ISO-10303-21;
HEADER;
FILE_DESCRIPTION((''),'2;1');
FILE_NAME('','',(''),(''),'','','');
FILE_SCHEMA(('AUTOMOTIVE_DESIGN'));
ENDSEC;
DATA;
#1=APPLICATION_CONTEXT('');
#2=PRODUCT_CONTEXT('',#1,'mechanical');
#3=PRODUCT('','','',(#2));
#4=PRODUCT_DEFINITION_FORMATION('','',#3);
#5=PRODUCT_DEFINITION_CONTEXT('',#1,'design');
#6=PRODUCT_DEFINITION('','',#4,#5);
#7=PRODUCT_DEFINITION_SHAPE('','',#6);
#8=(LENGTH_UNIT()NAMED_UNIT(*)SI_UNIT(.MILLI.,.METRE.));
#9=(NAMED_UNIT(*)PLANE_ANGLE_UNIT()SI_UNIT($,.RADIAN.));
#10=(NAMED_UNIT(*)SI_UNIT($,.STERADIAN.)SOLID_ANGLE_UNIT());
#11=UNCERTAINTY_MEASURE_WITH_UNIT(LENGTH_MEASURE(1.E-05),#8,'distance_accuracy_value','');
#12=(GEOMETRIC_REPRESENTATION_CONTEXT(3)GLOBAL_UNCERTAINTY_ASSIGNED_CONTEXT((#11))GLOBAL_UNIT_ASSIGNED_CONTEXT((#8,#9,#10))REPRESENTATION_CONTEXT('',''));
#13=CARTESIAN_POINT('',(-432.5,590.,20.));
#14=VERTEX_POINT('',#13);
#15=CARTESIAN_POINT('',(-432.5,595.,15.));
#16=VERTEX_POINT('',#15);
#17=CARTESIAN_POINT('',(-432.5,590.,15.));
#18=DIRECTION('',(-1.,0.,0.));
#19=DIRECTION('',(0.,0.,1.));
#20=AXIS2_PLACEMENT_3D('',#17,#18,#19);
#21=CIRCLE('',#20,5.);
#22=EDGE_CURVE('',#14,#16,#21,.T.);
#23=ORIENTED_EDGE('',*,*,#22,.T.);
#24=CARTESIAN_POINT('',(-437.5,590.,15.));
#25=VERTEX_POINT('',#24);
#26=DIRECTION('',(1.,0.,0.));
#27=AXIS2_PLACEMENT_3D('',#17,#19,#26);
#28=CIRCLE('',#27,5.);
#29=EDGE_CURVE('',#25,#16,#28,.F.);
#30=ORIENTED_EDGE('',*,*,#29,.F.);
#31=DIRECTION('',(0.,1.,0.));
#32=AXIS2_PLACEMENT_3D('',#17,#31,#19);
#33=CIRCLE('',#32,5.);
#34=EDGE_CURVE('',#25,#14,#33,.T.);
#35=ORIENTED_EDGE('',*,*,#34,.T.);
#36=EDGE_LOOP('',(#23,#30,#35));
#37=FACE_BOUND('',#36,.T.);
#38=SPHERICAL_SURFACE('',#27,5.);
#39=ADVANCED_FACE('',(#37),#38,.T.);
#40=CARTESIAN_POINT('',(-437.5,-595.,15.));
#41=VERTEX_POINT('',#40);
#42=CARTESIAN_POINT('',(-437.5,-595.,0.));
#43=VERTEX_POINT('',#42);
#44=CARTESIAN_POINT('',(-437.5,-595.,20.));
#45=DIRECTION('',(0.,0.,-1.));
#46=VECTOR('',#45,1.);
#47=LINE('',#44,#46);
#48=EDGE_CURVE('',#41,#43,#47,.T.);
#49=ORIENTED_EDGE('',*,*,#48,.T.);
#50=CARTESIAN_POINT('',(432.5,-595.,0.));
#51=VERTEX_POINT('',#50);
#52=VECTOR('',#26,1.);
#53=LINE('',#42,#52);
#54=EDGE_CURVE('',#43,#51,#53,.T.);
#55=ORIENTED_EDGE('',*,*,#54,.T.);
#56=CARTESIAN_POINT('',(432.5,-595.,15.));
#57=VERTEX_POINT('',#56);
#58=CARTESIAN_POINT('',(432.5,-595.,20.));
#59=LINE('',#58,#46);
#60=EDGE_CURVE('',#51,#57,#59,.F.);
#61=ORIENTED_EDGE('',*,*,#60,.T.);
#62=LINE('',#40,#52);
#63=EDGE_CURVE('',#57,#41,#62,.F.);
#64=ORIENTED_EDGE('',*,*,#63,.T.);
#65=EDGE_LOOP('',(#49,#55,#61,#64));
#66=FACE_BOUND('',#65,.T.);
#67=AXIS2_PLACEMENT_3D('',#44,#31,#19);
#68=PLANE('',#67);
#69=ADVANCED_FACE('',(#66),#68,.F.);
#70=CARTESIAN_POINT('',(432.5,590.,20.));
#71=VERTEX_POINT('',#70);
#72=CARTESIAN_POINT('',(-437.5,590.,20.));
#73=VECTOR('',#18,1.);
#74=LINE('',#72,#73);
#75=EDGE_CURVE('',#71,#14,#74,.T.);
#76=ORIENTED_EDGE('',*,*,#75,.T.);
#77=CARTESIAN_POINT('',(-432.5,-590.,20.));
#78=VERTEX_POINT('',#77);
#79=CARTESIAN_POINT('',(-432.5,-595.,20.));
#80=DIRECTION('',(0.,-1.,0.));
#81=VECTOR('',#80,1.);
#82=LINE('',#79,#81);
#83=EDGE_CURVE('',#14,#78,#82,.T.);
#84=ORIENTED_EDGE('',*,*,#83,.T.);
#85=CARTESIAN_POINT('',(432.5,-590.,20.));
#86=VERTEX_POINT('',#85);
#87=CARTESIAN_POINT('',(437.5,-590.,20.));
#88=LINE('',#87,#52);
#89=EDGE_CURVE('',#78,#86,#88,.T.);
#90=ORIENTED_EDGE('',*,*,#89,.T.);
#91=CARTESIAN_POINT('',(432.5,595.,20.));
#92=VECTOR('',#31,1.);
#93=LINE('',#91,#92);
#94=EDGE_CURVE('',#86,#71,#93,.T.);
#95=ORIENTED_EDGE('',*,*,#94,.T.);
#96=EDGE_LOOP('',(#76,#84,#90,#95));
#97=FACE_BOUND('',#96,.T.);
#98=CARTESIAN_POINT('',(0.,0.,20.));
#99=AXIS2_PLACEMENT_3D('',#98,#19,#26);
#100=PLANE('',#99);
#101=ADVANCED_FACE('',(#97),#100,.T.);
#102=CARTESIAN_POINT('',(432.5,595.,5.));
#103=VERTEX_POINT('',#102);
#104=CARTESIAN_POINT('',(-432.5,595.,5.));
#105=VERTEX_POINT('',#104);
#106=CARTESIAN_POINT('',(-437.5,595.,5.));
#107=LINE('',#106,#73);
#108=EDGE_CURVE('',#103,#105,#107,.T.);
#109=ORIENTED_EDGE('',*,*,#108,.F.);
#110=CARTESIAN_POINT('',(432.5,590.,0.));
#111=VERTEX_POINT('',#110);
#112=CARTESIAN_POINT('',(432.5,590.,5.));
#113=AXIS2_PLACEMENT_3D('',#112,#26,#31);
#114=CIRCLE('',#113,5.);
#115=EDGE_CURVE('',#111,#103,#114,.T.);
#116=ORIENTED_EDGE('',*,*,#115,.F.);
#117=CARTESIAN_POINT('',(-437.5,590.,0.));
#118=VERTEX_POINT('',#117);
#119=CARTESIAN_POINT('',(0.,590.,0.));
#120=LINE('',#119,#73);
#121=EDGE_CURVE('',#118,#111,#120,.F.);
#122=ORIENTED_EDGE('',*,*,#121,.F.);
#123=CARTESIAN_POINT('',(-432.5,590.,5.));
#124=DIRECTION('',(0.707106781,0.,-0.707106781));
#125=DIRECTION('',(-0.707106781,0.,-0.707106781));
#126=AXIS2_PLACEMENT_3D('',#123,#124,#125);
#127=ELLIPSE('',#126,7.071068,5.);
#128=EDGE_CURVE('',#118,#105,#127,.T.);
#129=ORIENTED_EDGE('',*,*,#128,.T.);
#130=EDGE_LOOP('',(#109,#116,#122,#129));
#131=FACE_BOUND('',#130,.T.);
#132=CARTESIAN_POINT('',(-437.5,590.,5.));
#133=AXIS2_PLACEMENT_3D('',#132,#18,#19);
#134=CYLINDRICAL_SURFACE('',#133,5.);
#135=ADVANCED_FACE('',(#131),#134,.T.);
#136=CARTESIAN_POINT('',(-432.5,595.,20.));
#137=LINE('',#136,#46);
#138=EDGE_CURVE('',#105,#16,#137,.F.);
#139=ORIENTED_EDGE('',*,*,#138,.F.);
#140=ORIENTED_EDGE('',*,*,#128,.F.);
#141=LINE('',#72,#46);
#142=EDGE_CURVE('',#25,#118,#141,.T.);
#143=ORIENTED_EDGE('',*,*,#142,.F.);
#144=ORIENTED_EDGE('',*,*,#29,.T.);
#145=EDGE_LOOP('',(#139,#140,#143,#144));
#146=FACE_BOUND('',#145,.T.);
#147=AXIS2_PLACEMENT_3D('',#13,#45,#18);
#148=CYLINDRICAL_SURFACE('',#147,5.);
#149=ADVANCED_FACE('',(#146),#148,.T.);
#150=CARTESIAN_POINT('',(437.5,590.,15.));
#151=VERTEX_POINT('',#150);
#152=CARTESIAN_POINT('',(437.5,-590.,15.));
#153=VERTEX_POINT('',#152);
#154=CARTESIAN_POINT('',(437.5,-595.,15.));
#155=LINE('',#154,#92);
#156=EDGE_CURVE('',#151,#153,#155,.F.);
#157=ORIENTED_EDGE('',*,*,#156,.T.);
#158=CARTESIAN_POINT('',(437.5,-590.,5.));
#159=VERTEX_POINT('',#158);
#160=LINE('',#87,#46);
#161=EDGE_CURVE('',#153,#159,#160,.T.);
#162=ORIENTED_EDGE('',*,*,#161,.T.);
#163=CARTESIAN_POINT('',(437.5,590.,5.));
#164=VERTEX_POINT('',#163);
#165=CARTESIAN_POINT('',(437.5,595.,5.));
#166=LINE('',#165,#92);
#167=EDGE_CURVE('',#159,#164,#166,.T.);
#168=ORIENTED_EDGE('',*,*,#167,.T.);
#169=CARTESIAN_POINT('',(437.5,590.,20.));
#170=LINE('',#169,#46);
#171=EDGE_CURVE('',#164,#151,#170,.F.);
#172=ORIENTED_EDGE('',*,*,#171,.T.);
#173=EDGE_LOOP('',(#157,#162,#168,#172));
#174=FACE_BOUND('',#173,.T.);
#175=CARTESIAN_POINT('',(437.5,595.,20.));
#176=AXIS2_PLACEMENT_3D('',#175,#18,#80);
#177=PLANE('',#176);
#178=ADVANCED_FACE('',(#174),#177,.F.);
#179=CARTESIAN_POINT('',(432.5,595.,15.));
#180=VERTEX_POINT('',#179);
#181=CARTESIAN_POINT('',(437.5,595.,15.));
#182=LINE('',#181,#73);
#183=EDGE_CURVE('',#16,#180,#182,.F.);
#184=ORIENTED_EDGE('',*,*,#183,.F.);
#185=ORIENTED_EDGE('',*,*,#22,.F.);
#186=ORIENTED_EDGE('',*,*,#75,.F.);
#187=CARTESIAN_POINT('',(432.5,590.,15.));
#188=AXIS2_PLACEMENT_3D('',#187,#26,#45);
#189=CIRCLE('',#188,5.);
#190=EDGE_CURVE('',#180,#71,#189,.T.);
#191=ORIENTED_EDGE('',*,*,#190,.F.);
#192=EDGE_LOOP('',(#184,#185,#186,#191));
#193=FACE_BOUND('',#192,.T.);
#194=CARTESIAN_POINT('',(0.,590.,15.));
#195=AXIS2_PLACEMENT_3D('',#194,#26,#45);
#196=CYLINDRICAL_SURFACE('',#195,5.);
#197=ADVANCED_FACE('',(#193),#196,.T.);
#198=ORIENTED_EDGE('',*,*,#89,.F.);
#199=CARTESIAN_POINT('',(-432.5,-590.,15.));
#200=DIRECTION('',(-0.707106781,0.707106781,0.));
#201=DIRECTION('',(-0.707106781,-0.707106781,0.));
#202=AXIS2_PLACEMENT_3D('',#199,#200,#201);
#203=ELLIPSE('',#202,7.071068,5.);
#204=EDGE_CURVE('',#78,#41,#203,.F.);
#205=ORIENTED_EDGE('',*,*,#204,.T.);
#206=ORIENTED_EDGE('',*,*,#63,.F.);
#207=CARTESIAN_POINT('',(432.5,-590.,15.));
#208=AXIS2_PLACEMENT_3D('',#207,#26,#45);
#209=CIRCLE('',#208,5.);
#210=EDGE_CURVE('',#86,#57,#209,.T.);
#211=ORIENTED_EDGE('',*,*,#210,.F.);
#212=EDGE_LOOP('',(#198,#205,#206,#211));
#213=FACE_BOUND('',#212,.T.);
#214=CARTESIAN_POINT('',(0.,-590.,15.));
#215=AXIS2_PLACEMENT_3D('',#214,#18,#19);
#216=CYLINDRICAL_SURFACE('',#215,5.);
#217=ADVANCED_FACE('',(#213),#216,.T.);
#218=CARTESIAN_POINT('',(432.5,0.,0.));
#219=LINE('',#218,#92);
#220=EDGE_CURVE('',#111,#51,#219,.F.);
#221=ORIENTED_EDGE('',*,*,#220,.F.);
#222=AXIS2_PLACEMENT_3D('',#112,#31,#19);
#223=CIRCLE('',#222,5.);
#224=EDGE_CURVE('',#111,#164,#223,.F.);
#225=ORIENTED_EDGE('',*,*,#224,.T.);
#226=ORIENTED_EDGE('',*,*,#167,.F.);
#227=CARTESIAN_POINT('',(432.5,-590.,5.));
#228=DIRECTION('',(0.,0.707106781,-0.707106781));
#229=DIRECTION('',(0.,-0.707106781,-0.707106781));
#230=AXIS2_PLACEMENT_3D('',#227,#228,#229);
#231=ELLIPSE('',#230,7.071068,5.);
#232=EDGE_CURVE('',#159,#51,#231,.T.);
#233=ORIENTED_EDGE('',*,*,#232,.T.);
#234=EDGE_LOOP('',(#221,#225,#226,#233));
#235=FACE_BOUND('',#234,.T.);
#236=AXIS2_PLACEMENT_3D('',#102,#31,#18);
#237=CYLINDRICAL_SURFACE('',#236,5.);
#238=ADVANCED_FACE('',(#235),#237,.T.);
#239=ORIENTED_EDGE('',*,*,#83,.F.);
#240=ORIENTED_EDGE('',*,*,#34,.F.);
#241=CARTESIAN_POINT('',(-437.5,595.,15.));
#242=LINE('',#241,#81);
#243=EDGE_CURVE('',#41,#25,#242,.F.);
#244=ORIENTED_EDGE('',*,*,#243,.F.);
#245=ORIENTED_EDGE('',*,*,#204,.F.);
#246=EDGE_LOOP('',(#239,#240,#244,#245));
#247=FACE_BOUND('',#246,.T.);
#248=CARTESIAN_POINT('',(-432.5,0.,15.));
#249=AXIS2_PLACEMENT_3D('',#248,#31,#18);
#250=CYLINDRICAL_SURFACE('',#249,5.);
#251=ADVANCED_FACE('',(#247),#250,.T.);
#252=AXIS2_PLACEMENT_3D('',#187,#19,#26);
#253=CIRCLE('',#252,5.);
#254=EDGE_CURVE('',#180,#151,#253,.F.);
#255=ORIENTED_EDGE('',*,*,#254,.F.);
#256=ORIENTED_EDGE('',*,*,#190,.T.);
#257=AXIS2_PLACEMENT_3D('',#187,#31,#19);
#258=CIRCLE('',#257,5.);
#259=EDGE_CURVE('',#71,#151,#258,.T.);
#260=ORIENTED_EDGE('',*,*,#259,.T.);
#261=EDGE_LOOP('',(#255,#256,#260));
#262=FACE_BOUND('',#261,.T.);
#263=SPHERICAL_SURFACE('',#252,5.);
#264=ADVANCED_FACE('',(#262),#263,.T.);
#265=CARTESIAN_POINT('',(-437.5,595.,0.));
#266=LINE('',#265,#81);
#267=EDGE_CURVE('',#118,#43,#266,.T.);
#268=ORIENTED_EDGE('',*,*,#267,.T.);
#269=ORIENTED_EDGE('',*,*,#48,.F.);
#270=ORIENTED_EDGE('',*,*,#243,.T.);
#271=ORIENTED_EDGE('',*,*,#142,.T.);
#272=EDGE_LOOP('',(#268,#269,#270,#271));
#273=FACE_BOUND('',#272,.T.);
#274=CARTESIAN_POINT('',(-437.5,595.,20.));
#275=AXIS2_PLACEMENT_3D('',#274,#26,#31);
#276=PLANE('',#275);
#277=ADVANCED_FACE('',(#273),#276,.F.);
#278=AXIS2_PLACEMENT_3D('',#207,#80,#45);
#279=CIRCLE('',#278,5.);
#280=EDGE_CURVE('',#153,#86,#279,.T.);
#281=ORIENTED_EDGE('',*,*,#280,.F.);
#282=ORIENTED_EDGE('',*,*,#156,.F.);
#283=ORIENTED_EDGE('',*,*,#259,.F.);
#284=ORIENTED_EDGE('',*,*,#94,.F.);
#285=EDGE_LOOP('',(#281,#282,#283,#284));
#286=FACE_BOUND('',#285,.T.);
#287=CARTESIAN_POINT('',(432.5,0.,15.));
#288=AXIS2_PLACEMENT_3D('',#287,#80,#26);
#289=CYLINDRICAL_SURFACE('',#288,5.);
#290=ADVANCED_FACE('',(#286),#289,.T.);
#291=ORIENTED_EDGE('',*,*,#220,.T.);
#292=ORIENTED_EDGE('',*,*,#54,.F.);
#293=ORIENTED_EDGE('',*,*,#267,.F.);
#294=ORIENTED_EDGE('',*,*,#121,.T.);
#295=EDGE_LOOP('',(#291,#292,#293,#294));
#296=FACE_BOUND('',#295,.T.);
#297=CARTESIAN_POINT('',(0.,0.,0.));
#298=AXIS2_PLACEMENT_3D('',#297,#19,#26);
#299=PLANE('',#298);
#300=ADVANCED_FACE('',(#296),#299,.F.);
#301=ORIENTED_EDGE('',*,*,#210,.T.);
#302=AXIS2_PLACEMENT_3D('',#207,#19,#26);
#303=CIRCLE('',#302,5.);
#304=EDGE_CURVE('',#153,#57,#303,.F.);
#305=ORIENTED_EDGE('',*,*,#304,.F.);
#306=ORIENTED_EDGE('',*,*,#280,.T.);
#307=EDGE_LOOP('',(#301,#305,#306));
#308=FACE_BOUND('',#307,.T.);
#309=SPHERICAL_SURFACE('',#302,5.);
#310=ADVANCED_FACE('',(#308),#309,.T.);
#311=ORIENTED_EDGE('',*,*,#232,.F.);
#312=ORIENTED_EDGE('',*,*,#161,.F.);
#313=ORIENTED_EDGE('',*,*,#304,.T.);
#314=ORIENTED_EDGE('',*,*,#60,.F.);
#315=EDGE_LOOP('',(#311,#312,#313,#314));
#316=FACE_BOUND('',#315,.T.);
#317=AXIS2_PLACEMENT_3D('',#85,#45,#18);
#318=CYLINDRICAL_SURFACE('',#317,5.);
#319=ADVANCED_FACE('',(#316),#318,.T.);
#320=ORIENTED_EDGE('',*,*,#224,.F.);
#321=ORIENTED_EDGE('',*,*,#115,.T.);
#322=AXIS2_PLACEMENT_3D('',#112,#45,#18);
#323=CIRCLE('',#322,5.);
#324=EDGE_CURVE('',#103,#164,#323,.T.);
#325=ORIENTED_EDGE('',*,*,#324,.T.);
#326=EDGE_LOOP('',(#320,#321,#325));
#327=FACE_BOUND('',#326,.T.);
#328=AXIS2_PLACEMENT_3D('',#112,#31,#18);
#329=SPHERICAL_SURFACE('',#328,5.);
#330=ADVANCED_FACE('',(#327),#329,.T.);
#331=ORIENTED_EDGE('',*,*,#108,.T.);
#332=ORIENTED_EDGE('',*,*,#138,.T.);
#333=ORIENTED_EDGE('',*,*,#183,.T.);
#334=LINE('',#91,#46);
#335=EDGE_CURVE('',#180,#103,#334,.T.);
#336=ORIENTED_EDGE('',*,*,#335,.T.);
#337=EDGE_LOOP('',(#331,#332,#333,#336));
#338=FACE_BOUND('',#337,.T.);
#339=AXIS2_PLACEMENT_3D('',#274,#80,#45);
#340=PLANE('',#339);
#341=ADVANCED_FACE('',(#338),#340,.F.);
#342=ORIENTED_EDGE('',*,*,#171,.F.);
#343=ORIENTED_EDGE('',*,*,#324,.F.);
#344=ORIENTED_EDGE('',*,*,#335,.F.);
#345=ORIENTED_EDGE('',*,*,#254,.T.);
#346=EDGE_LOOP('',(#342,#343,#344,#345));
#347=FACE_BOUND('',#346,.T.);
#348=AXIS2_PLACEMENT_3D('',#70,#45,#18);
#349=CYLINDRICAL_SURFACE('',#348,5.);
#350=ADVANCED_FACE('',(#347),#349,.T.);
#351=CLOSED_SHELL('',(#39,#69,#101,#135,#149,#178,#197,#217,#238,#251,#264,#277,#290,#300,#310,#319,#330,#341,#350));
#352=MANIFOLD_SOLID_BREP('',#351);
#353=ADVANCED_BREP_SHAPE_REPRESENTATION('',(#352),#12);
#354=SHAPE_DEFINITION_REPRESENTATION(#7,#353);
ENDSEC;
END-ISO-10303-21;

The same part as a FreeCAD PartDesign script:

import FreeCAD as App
import Part
import Sketcher
Q = App.Units.Quantity


def edges_at(feature, points):
    """Names of the edges that pass closest to the given points."""
    edges = feature.Shape.Edges
    near = lambda p: min(range(len(edges)), key=lambda i: edges[i].distToShape(Part.Vertex(*p))[0])
    return sorted({f"Edge{near(p) + 1}" for p in points})


def add_polygon(sketch, points):
    """Adds a closed chain of lines whose ends are joined by coincident constraints."""
    first, n = sketch.GeometryCount, len(points)
    for a, b in zip(points, points[1:] + points[:1]):
        sketch.addGeometry(Part.LineSegment(App.Vector(*a, 0), App.Vector(*b, 0)), False)
    for i in range(n):
        sketch.addConstraint(Sketcher.Constraint("Coincident", first + i, 2, first + (i + 1) % n, 1))

doc = App.newDocument("Part")
body = doc.addObject("PartDesign::Body", "Body")

sketch1 = body.newObject("Sketcher::SketchObject", "Sketch")
sketch1.AttachmentSupport = (doc.getObject("XY_Plane"), [""])
sketch1.MapMode = "FlatFace"
add_polygon(sketch1, [(-438, 595), (-438, -595), (438, -595), (438, 595)])
sketch1.addConstraint([
    Sketcher.Constraint("Vertical", 0),
    Sketcher.Constraint("Horizontal", 1),
    Sketcher.Constraint("Vertical", 2),
    Sketcher.Constraint("Horizontal", 3),
    Sketcher.Constraint("Symmetric", 0, 2, 2, 2, -1, 1),
    Sketcher.Constraint("DistanceX", 1, 1, 1, 2, Q("875 mm")),
    Sketcher.Constraint("DistanceY", 0, 2, 0, 1, Q("1190 mm")),
])
pad1 = body.newObject("PartDesign::Pad", "Pad")
pad1.Profile = sketch1
pad1.Length = 20
doc.recompute()

fillet = body.newObject("PartDesign::Fillet", "Fillet")
fillet.Base = (pad1, edges_at(pad1, [
    (-437.5, 0, 20),
    (0, -595, 20),
    (437.5, 0, 20),
    (0, 595, 0),
    (437.5, 0, 0),
    (437.5, -595, 10),
    (-437.5, 595, 10),
    (437.5, 595, 10),
    (0, 595, 20),
]))
fillet.Radius = 5

doc.recompute()
